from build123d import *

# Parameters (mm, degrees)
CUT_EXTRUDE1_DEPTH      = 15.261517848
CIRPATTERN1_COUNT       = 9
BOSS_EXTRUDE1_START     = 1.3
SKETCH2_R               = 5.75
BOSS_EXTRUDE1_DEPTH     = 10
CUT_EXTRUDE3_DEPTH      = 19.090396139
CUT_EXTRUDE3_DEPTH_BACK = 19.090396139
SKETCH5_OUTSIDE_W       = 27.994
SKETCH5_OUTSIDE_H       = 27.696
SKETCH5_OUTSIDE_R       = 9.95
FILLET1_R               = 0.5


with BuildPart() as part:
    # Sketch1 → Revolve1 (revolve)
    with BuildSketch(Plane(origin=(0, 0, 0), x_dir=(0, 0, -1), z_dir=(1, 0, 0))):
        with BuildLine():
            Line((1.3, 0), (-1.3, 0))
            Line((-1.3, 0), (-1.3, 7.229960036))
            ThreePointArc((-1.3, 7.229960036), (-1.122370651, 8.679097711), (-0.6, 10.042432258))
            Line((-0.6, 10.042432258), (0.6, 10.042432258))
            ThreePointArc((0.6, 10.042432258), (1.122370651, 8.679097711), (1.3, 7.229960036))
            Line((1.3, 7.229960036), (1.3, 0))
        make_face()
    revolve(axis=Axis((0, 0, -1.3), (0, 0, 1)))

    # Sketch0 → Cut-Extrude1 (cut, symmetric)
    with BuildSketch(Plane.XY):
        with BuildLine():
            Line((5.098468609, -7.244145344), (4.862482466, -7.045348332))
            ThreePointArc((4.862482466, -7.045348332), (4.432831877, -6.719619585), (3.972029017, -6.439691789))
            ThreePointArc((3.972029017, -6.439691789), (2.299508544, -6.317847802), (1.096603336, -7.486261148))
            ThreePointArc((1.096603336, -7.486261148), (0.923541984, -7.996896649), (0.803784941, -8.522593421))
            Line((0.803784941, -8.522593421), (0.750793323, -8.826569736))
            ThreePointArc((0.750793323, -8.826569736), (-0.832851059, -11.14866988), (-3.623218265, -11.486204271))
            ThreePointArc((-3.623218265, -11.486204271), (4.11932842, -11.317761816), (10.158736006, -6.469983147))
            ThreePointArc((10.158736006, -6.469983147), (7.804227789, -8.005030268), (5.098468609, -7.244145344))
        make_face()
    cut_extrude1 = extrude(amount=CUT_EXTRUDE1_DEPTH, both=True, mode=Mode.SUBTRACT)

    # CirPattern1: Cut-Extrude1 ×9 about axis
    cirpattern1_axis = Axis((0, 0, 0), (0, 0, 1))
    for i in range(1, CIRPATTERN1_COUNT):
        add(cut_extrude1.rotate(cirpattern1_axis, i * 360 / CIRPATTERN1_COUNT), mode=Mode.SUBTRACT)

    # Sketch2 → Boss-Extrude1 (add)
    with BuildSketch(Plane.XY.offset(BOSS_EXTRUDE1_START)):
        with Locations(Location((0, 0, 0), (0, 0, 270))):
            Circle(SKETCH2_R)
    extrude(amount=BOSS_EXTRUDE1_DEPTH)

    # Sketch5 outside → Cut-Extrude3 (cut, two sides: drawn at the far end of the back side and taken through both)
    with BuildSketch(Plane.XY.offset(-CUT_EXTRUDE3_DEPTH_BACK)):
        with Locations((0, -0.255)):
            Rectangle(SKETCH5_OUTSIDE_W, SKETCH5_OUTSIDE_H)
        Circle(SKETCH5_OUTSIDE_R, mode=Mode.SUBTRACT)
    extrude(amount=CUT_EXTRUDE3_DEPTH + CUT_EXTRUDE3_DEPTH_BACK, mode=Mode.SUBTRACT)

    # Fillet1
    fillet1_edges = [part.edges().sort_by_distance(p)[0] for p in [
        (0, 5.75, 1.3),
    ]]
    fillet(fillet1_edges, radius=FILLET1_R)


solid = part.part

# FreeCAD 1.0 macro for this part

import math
import FreeCAD as App
import Part
import Sketcher
from FreeCAD import Vector


def edges_at(feature, points):
    """Names of the edges that pass closest to the given points."""
    edges = feature.Shape.Edges
    near = lambda p: min(range(len(edges)), key=lambda i: edges[i].distToShape(Part.Vertex(*p))[0])
    return sorted({f"Edge{near(p) + 1}" for p in points})


def add_polygon(sketch, points):
    """Adds a closed chain of lines whose ends are joined by coincident constraints."""
    first, n = sketch.GeometryCount, len(points)
    for a, b in zip(points, points[1:] + points[:1]):
        sketch.addGeometry(Part.LineSegment(App.Vector(*a, 0), App.Vector(*b, 0)), False)
    for i in range(n):
        sketch.addConstraint(Sketcher.Constraint("Coincident", first + i, 2, first + (i + 1) % n, 1))

doc = App.newDocument("Part")
body = doc.addObject("PartDesign::Body", "Body")

# Sketch on YZ plane
sketch1 = body.newObject("Sketcher::SketchObject", "Sketch")
sketch1.AttachmentSupport = (doc.getObject("YZ_Plane"), [""])
sketch1.MapMode = "FlatFace"
sketch1.addGeometry([
    Part.LineSegment(Vector(0, 1.3, 0), Vector(0, -1.3, 0)),  # 0
    Part.LineSegment(Vector(0, -1.3, 0), Vector(7.2, -1.3, 0)),  # 1
    Part.ArcOfCircle(Part.Circle(Vector(7.2, 4.7, 0), Vector(0, 0, 1), 6), math.radians(-90), math.radians(-62)),  # 2
    Part.LineSegment(Vector(10, -0.6, 0), Vector(10, 0.6, 0)),  # 3
    Part.ArcOfCircle(Part.Circle(Vector(7.2, -4.7, 0), Vector(0, 0, 1), 6), math.radians(62), math.radians(90)),  # 4
    Part.LineSegment(Vector(7.2, 1.3, 0), Vector(0, 1.3, 0)),  # 5
], False)
sketch1.addConstraint([
    Sketcher.Constraint("Coincident", 0, 2, 1, 1),
    Sketcher.Constraint("Tangent", 1, 2, 2, 1),
    Sketcher.Constraint("Coincident", 2, 2, 3, 1),
    Sketcher.Constraint("Coincident", 3, 2, 4, 1),
    Sketcher.Constraint("Tangent", 4, 2, 5, 1),
    Sketcher.Constraint("Coincident", 5, 2, 0, 1),
    Sketcher.Constraint("Vertical", 0),
    Sketcher.Constraint("Horizontal", 1),
    Sketcher.Constraint("Vertical", 3),
    Sketcher.Constraint("Horizontal", 5),
    Sketcher.Constraint("Equal", 2, 4),
    Sketcher.Constraint("Symmetric", 0, 2, 5, 2, -1, 1),
    Sketcher.Constraint("Vertical", 2, 3, 4, 3),
    Sketcher.Constraint("Radius", 2, 6.0),
    Sketcher.Constraint("DistanceY", 0, 2, 0, 1, 2.6),
    Sketcher.Constraint("DistanceY", 3, 1, 3, 2, 1.2),
    Sketcher.Constraint("DistanceX", 1, 1, 1, 2, 7.22996),
])
revolution = body.newObject("PartDesign::Revolution", "Revolution")
revolution.Profile = sketch1
revolution.ReferenceAxis = (sketch1, ["V_Axis"])
revolution.Angle = 360

# Sketch on XY plane
sketch2 = body.newObject("Sketcher::SketchObject", "Sketch001")
sketch2.AttachmentSupport = (doc.getObject("XY_Plane"), [""])
sketch2.MapMode = "FlatFace"
sketch2.addGeometry([
    Part.LineSegment(Vector(5.1, -7.24, 0), Vector(4.86, -7.05, 0)),  # 0
    Part.ArcOfCircle(Part.Circle(Vector(1.48, -11.06, 0), Vector(0, 0, 1), 5.25), math.radians(49.89), math.radians(61.67)),  # 1
    Part.ArcOfCircle(Part.Circle(Vector(3, -8.24, 0), Vector(0, 0, 1), 2.05), math.radians(62), math.radians(158)),  # 2
    Part.ArcOfCircle(Part.Circle(Vector(5.97, -9.42, 0), Vector(0, 0, 1), 5.25), math.radians(158.33), math.radians(170.11)),  # 3
    Part.LineSegment(Vector(0.8, -8.52, 0), Vector(0.75, -8.83, 0)),  # 4
    Part.ArcOfCircle(Part.Circle(Vector(-2.6, -8.24, 0), Vector(0, 0, 1), 3.4), math.radians(-108), math.radians(-10)),  # 5
    Part.ArcOfCircle(Part.Circle(Vector(0, 0, 0), Vector(0, 0, 1), 12.04), math.radians(-108), math.radians(-32)),  # 6
    Part.ArcOfCircle(Part.Circle(Vector(7.29, -4.64, 0), Vector(0, 0, 1), 3.4), math.radians(-130), math.radians(-32)),  # 7
], False)
sketch2.addConstraint([
    Sketcher.Constraint("Tangent", 0, 2, 1, 1),
    Sketcher.Constraint("Tangent", 1, 2, 2, 1),
    Sketcher.Constraint("Tangent", 2, 2, 3, 1),
    Sketcher.Constraint("Tangent", 3, 2, 4, 1),
    Sketcher.Constraint("Tangent", 4, 2, 5, 2),
    Sketcher.Constraint("Tangent", 5, 1, 6, 1),
    Sketcher.Constraint("Tangent", 6, 2, 7, 2),
    Sketcher.Constraint("Tangent", 7, 1, 0, 1),
    Sketcher.Constraint("Coincident", 6, 3, -1, 1),
    Sketcher.Constraint("Equal", 1, 3),
    Sketcher.Constraint("Equal", 5, 7),
    Sketcher.Constraint("Horizontal", 2, 3, 5, 3),
    Sketcher.Constraint("Equal", 0, 4),
    Sketcher.Constraint("DistanceX", -1, 1, 2, 3, 3.0),
    Sketcher.Constraint("DistanceX", 5, 3, -1, 1, 2.6),
    Sketcher.Constraint("Radius", 1, 5.2481),
    Sketcher.Constraint("Radius", 2, 2.0481),
    Sketcher.Constraint("Radius", 5, 3.401328),
    Sketcher.Constraint("Radius", 6, 12.044111),
    Sketcher.Constraint("DistanceY", 3, 3, 1, 2, 2.9842),
    Sketcher.Constraint("DistanceY", 3, 2, 1, 2, 2.082902),
])
pocket1 = body.newObject("PartDesign::Pocket", "Pocket")
pocket1.Profile = sketch2
pocket1.Length = 30.523036
pocket1.Midplane = True
doc.recompute()

polarpattern = body.newObject("PartDesign::PolarPattern", "PolarPattern")
polarpattern.Originals = [pocket1]
polarpattern.Axis = (doc.getObject("Z_Axis"), [""])
polarpattern.Angle = 360
polarpattern.Occurrences = 9
body.Tip = polarpattern

# Sketch on XY plane
sketch3 = body.newObject("Sketcher::SketchObject", "Sketch002")
sketch3.AttachmentSupport = (doc.getObject("XY_Plane"), [""])
sketch3.MapMode = "FlatFace"
sketch3.AttachmentOffset = App.Placement(Vector(0, 0, 1.3), App.Rotation())
sketch3.addGeometry(Part.Circle(Vector(0, 0, 0), Vector(0, 0, 1), 6), False)
sketch3.addConstraint([
    Sketcher.Constraint("Coincident", 0, 3, -1, 1),
    Sketcher.Constraint("Diameter", 0, 11.5),
])
pad1 = body.newObject("PartDesign::Pad", "Pad")
pad1.Profile = sketch3
pad1.Length = 10

# Sketch on XY plane
sketch4 = body.newObject("Sketcher::SketchObject", "Sketch003")
sketch4.AttachmentSupport = (doc.getObject("XY_Plane"), [""])
sketch4.MapMode = "FlatFace"
add_polygon(sketch4, [(-14, 14), (-14, -14), (14, -14), (14, 14)])  # lines 0-3
sketch4.addGeometry(Part.Circle(Vector(0, 0, 0), Vector(0, 0, 1), 10), False)  # 4
sketch4.addConstraint([
    Sketcher.Constraint("Vertical", 0),
    Sketcher.Constraint("Horizontal", 1),
    Sketcher.Constraint("Vertical", 2),
    Sketcher.Constraint("Horizontal", 3),
    Sketcher.Constraint("Coincident", 4, 3, -1, 1),
    Sketcher.Constraint("Diameter", 4, 19.9),
    Sketcher.Constraint("DistanceX", 1, 1, 1, 2, 27.994),
    Sketcher.Constraint("DistanceY", 0, 2, 0, 1, 27.696),
    Sketcher.Constraint("DistanceX", 0, 2, -1, 1, 13.997),
    Sketcher.Constraint("DistanceY", 0, 2, -1, 1, 14.103),
])
pocket2 = body.newObject("PartDesign::Pocket", "Pocket001")
pocket2.Profile = sketch4
pocket2.Type = "ThroughAll"
pocket2.Midplane = True
doc.recompute()

fillet = body.newObject("PartDesign::Fillet", "Fillet")
fillet.Base = (pocket2, edges_at(pocket2, [(0, 5.75, 1.3)]))
fillet.Radius = 0.5

doc.recompute()
